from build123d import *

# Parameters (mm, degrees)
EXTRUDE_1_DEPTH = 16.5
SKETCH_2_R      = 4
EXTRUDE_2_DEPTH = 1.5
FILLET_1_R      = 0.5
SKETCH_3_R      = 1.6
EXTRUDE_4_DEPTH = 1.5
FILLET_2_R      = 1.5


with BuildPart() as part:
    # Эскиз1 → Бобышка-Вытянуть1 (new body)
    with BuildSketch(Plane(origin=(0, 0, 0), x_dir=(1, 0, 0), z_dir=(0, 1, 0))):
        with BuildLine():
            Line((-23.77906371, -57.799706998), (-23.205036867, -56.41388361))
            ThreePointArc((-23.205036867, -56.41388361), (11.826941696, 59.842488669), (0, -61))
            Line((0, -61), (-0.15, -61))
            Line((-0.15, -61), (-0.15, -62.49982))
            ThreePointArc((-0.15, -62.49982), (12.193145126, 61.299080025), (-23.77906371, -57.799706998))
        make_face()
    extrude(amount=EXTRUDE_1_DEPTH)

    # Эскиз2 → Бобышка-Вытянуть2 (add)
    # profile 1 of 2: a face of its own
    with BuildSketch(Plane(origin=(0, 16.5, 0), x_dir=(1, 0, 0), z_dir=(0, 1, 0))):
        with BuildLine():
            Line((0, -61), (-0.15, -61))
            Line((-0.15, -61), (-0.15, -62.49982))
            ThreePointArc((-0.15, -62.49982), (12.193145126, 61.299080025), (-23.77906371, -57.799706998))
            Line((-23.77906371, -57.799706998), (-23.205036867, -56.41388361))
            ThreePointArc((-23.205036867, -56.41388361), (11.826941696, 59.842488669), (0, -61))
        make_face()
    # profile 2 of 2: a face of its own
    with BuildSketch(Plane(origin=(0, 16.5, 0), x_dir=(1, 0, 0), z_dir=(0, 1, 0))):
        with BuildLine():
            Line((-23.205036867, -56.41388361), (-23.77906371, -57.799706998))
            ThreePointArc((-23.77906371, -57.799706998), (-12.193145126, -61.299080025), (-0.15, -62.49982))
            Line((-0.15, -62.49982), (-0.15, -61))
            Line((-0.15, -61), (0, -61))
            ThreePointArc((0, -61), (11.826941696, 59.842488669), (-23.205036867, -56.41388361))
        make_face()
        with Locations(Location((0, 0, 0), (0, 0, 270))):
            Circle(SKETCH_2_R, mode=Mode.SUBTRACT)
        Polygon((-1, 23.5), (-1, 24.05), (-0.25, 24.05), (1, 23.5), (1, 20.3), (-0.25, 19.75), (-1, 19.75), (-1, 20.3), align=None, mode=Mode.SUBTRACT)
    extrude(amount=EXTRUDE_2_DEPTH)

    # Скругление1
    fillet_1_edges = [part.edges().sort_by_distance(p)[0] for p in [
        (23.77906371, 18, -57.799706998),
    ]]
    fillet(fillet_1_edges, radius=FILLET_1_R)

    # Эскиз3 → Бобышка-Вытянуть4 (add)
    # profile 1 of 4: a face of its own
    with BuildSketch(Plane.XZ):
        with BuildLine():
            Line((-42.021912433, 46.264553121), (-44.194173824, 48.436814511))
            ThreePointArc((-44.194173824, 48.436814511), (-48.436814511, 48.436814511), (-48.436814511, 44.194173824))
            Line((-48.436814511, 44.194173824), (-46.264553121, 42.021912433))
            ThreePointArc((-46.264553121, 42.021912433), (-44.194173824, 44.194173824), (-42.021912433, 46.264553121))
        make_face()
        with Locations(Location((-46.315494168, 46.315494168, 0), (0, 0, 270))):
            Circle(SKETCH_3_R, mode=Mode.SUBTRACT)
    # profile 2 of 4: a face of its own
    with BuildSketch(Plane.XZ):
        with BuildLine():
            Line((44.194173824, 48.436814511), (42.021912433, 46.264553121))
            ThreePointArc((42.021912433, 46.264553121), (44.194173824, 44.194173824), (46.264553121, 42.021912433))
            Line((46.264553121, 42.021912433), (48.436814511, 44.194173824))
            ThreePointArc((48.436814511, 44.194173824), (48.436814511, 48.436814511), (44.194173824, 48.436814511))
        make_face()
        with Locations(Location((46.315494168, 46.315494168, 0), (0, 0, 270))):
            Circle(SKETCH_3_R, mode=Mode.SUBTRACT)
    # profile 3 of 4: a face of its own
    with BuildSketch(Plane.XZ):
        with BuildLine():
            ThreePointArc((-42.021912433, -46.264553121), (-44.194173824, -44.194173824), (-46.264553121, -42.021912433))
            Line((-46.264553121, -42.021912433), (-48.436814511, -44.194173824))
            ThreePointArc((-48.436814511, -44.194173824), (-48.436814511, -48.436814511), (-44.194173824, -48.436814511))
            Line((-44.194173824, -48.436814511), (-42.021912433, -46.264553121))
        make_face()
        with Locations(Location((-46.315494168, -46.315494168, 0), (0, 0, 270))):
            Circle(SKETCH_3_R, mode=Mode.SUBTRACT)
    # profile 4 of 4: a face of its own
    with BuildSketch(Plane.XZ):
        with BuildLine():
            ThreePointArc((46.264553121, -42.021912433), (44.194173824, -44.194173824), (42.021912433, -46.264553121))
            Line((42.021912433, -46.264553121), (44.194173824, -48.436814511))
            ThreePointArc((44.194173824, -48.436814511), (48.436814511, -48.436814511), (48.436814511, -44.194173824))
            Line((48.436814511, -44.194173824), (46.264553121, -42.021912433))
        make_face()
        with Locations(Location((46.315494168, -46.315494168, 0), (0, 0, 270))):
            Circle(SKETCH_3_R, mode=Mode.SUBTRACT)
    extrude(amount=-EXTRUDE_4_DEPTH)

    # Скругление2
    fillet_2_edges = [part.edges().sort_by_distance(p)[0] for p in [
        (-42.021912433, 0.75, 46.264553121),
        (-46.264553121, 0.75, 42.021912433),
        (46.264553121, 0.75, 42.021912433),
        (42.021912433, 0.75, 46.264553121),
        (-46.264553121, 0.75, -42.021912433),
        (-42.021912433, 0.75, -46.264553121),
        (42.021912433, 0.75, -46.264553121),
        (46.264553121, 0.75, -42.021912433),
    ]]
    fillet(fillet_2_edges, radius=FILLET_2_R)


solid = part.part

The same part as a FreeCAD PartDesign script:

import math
import FreeCAD as App
import Part
import Sketcher
Q = App.Units.Quantity


def edges_at(feature, points):
    """Names of the edges that pass closest to the given points."""
    edges = feature.Shape.Edges
    near = lambda p: min(range(len(edges)), key=lambda i: edges[i].distToShape(Part.Vertex(*p))[0])
    return sorted({f"Edge{near(p) + 1}" for p in points})

doc = App.newDocument("Part")
body = doc.addObject("PartDesign::Body", "Body")

sketch1 = doc.addObject("Sketcher::SketchObject", "Sketch")
body.addObject(sketch1)
sketch1.AttachmentSupport = (doc.XZ_Plane, [""])
sketch1.MapMode = "FlatFace"
sketch1.addGeometry(Part.LineSegment(App.Vector(-23.779064, 57.799707, 0), App.Vector(-23.205037, 56.413884, 0)), False)
sketch1.addGeometry(Part.ArcOfCircle(Part.Circle(App.Vector(0, 0, 0), App.Vector(0, 0, 1), 61), math.radians(112.359109), math.radians(450)), False)
sketch1.addGeometry(Part.LineSegment(App.Vector(0, 61, 0), App.Vector(-0.15, 61, 0)), False)
sketch1.addGeometry(Part.LineSegment(App.Vector(-0.15, 61, 0), App.Vector(-0.15, 62.49982, 0)), False)
sketch1.addGeometry(Part.ArcOfCircle(Part.Circle(App.Vector(0, 0, 0), App.Vector(0, 0, 1), 62.5), math.radians(112.36249), math.radians(450.13751)), False)
sketch1.addConstraint(Sketcher.Constraint("Coincident", 0, 2, 1, 1))
sketch1.addConstraint(Sketcher.Constraint("Tangent", 1, 2, 2, 1))
sketch1.addConstraint(Sketcher.Constraint("Coincident", 2, 2, 3, 1))
sketch1.addConstraint(Sketcher.Constraint("Coincident", 3, 2, 4, 2))
sketch1.addConstraint(Sketcher.Constraint("Coincident", 4, 1, 0, 1))
sketch1.addConstraint(Sketcher.Constraint("Horizontal", 2))
sketch1.addConstraint(Sketcher.Constraint("Vertical", 3))
sketch1.addConstraint(Sketcher.Constraint("Coincident", 1, 3, -1, 1))
sketch1.addConstraint(Sketcher.Constraint("Coincident", 4, 3, -1, 1))
sketch1.addConstraint(Sketcher.Constraint("Radius", 1, Q("61 mm")))
sketch1.addConstraint(Sketcher.Constraint("Radius", 4, Q("62.5 mm")))
sketch1.addConstraint(Sketcher.Constraint("Angle", 0, Q("-67.5 deg")))
sketch1.addConstraint(Sketcher.Constraint("DistanceX", 2, 2, 2, 1, Q("0.15 mm")))
sketch1.addConstraint(Sketcher.Constraint("DistanceX", 0, 2, -1, 1, Q("23.205037 mm")))
pad1 = doc.addObject("PartDesign::Pad", "Pad")
body.addObject(pad1)
pad1.Profile = sketch1
pad1.Length = 16.5
pad1.Reversed = True

sketch2 = doc.addObject("Sketcher::SketchObject", "Sketch001")
body.addObject(sketch2)
sketch2.AttachmentSupport = (doc.XZ_Plane, [""])
sketch2.MapMode = "FlatFace"
sketch2.AttachmentOffset = App.Placement(App.Vector(0, 0, -16.5), App.Rotation())
sketch2.addGeometry(Part.ArcOfCircle(Part.Circle(App.Vector(0, 0, 0), App.Vector(0, 0, 1), 62.5), math.radians(112.36249), math.radians(450.13751)), False)
sketch2.addGeometry(Part.ArcOfCircle(Part.Circle(App.Vector(0, 0, 0), App.Vector(0, 0, 1), 62.5), math.radians(90.13751), math.radians(112.36249)), False)
sketch2.addGeometry(Part.LineSegment(App.Vector(1, -23.5, 0), App.Vector(1, -20.3, 0)), False)
sketch2.addGeometry(Part.LineSegment(App.Vector(1, -20.3, 0), App.Vector(-0.25, -19.75, 0)), False)
sketch2.addGeometry(Part.LineSegment(App.Vector(-0.25, -19.75, 0), App.Vector(-1, -19.75, 0)), False)
sketch2.addGeometry(Part.LineSegment(App.Vector(-1, -19.75, 0), App.Vector(-1, -24.05, 0)), False)
sketch2.addGeometry(Part.LineSegment(App.Vector(-1, -24.05, 0), App.Vector(-0.25, -24.05, 0)), False)
sketch2.addGeometry(Part.LineSegment(App.Vector(-0.25, -24.05, 0), App.Vector(1, -23.5, 0)), False)
sketch2.addGeometry(Part.Circle(App.Vector(0, 0, 0), App.Vector(0, 0, 1), 4), False)
sketch2.addConstraint(Sketcher.Constraint("Tangent", 0, 1, 1, 2))
sketch2.addConstraint(Sketcher.Constraint("Coincident", 1, 1, 0, 2))
sketch2.addConstraint(Sketcher.Constraint("Coincident", 2, 2, 3, 1))
sketch2.addConstraint(Sketcher.Constraint("Coincident", 3, 2, 4, 1))
sketch2.addConstraint(Sketcher.Constraint("Coincident", 4, 2, 5, 1))
sketch2.addConstraint(Sketcher.Constraint("Coincident", 5, 2, 6, 1))
sketch2.addConstraint(Sketcher.Constraint("Coincident", 6, 2, 7, 1))
sketch2.addConstraint(Sketcher.Constraint("Coincident", 7, 2, 2, 1))
sketch2.addConstraint(Sketcher.Constraint("Vertical", 2))
sketch2.addConstraint(Sketcher.Constraint("Horizontal", 4))
sketch2.addConstraint(Sketcher.Constraint("Vertical", 5))
sketch2.addConstraint(Sketcher.Constraint("Horizontal", 6))
sketch2.addConstraint(Sketcher.Constraint("Coincident", 0, 3, -1, 1))
sketch2.addConstraint(Sketcher.Constraint("Coincident", 8, 3, -1, 1))
sketch2.addConstraint(Sketcher.Constraint("Vertical", 3, 2, 6, 2))
sketch2.addConstraint(Sketcher.Constraint("Equal", 3, 7))
sketch2.addConstraint(Sketcher.Constraint("Diameter", 8, Q("8 mm")))
sketch2.addConstraint(Sketcher.Constraint("Radius", 0, Q("62.5 mm")))
sketch2.addConstraint(Sketcher.Constraint("DistanceY", 2, 1, 2, 2, Q("3.2 mm")))
sketch2.addConstraint(Sketcher.Constraint("DistanceY", 5, 2, 5, 1, Q("4.3 mm")))
sketch2.addConstraint(Sketcher.Constraint("DistanceX", -1, 1, 2, 2, Q("1 mm")))
sketch2.addConstraint(Sketcher.Constraint("DistanceX", 4, 2, -1, 1, Q("1 mm")))
sketch2.addConstraint(Sketcher.Constraint("DistanceX", 4, 2, 4, 1, Q("0.75 mm")))
sketch2.addConstraint(Sketcher.Constraint("DistanceY", 2, 2, -1, 1, Q("20.3 mm")))
sketch2.addConstraint(Sketcher.Constraint("DistanceX", 1, 1, -1, 1, Q("0.15 mm")))
sketch2.addConstraint(Sketcher.Constraint("DistanceX", 0, 1, -1, 1, Q("23.779064 mm")))
pad2 = doc.addObject("PartDesign::Pad", "Pad001")
body.addObject(pad2)
pad2.Profile = sketch2
pad2.Length = 1.5
pad2.Reversed = True
doc.recompute()

fillet = doc.addObject("PartDesign::Fillet", "Fillet")
body.addObject(fillet)
fillet.Base = (pad2, edges_at(pad2, [(12.193, 18, -61.299)]))
fillet.Radius = 0.5

sketch3 = doc.addObject("Sketcher::SketchObject", "Sketch002")
body.addObject(sketch3)
sketch3.AttachmentSupport = (doc.XZ_Plane, [""])
sketch3.MapMode = "FlatFace"
sketch3.addGeometry(Part.LineSegment(App.Vector(-42.021912, 46.264553, 0), App.Vector(-44.194174, 48.436815, 0)), False)
sketch3.addGeometry(Part.ArcOfCircle(Part.Circle(App.Vector(-46.315494, 46.315494, 0), App.Vector(0, 0, 1), 3), math.radians(45), math.radians(225)), False)
sketch3.addGeometry(Part.LineSegment(App.Vector(-48.436815, 44.194174, 0), App.Vector(-46.264553, 42.021912, 0)), False)
sketch3.addGeometry(Part.ArcOfCircle(Part.Circle(App.Vector(0, 0, 0), App.Vector(0, 0, 1), 62.5), math.radians(132.248745), math.radians(137.751255)), False)
sketch3.addGeometry(Part.Circle(App.Vector(-46.315494, 46.315494, 0), App.Vector(0, 0, 1), 1.6), False)
sketch3.addGeometry(Part.LineSegment(App.Vector(44.194174, 48.436815, 0), App.Vector(42.021912, 46.264553, 0)), False)
sketch3.addGeometry(Part.ArcOfCircle(Part.Circle(App.Vector(0, 0, 0), App.Vector(0, 0, 1), 62.5), math.radians(42.248745), math.radians(47.751255)), False)
sketch3.addGeometry(Part.LineSegment(App.Vector(46.264553, 42.021912, 0), App.Vector(48.436815, 44.194174, 0)), False)
sketch3.addGeometry(Part.ArcOfCircle(Part.Circle(App.Vector(46.315494, 46.315494, 0), App.Vector(0, 0, 1), 3), math.radians(-45), math.radians(135)), False)
sketch3.addGeometry(Part.Circle(App.Vector(46.315494, 46.315494, 0), App.Vector(0, 0, 1), 1.6), False)
sketch3.addGeometry(Part.ArcOfCircle(Part.Circle(App.Vector(0, 0, 0), App.Vector(0, 0, 1), 62.5), math.radians(-137.751255), math.radians(-132.248745)), False)
sketch3.addGeometry(Part.LineSegment(App.Vector(-46.264553, -42.021912, 0), App.Vector(-48.436815, -44.194174, 0)), False)
sketch3.addGeometry(Part.ArcOfCircle(Part.Circle(App.Vector(-46.315494, -46.315494, 0), App.Vector(0, 0, 1), 3), math.radians(135), math.radians(315)), False)
sketch3.addGeometry(Part.LineSegment(App.Vector(-44.194174, -48.436815, 0), App.Vector(-42.021912, -46.264553, 0)), False)
sketch3.addGeometry(Part.Circle(App.Vector(-46.315494, -46.315494, 0), App.Vector(0, 0, 1), 1.6), False)
sketch3.addGeometry(Part.ArcOfCircle(Part.Circle(App.Vector(0, 0, 0), App.Vector(0, 0, 1), 62.5), math.radians(-47.751255), math.radians(-42.248745)), False)
sketch3.addGeometry(Part.LineSegment(App.Vector(42.021912, -46.264553, 0), App.Vector(44.194174, -48.436815, 0)), False)
sketch3.addGeometry(Part.ArcOfCircle(Part.Circle(App.Vector(46.315494, -46.315494, 0), App.Vector(0, 0, 1), 3), math.radians(-135), math.radians(45)), False)
sketch3.addGeometry(Part.LineSegment(App.Vector(48.436815, -44.194174, 0), App.Vector(46.264553, -42.021912, 0)), False)
sketch3.addGeometry(Part.Circle(App.Vector(46.315494, -46.315494, 0), App.Vector(0, 0, 1), 1.6), False)
sketch3.addConstraint(Sketcher.Constraint("Tangent", 0, 2, 1, 1))
sketch3.addConstraint(Sketcher.Constraint("Tangent", 1, 2, 2, 1))
sketch3.addConstraint(Sketcher.Constraint("Coincident", 2, 2, 3, 2))
sketch3.addConstraint(Sketcher.Constraint("Coincident", 3, 1, 0, 1))
sketch3.addConstraint(Sketcher.Constraint("Coincident", 5, 2, 6, 2))
sketch3.addConstraint(Sketcher.Constraint("Coincident", 6, 1, 7, 1))
sketch3.addConstraint(Sketcher.Constraint("Tangent", 7, 2, 8, 1))
sketch3.addConstraint(Sketcher.Constraint("Tangent", 8, 2, 5, 1))
sketch3.addConstraint(Sketcher.Constraint("Coincident", 10, 1, 11, 1))
sketch3.addConstraint(Sketcher.Constraint("Tangent", 11, 2, 12, 1))
sketch3.addConstraint(Sketcher.Constraint("Tangent", 12, 2, 13, 1))
sketch3.addConstraint(Sketcher.Constraint("Coincident", 13, 2, 10, 2))
sketch3.addConstraint(Sketcher.Constraint("Coincident", 15, 1, 16, 1))
sketch3.addConstraint(Sketcher.Constraint("Tangent", 16, 2, 17, 1))
sketch3.addConstraint(Sketcher.Constraint("Tangent", 17, 2, 18, 1))
sketch3.addConstraint(Sketcher.Constraint("Coincident", 18, 2, 15, 2))
sketch3.addConstraint(Sketcher.Constraint("Coincident", 3, 3, -1, 1))
sketch3.addConstraint(Sketcher.Constraint("Coincident", 6, 3, -1, 1))
sketch3.addConstraint(Sketcher.Constraint("Coincident", 10, 3, -1, 1))
sketch3.addConstraint(Sketcher.Constraint("Coincident", 15, 3, -1, 1))
sketch3.addConstraint(Sketcher.Constraint("Coincident", 4, 3, 1, 3))
sketch3.addConstraint(Sketcher.Constraint("Coincident", 9, 3, 8, 3))
sketch3.addConstraint(Sketcher.Constraint("Coincident", 14, 3, 12, 3))
sketch3.addConstraint(Sketcher.Constraint("Coincident", 19, 3, 17, 3))
sketch3.addConstraint(Sketcher.Constraint("Equal", 3, 6))
sketch3.addConstraint(Sketcher.Constraint("Equal", 1, 8))
sketch3.addConstraint(Sketcher.Constraint("Equal", 4, 9))
sketch3.addConstraint(Sketcher.Constraint("Equal", 6, 10))
sketch3.addConstraint(Sketcher.Constraint("Equal", 8, 12))
sketch3.addConstraint(Sketcher.Constraint("Equal", 9, 14))
sketch3.addConstraint(Sketcher.Constraint("Equal", 10, 15))
sketch3.addConstraint(Sketcher.Constraint("Equal", 12, 17))
sketch3.addConstraint(Sketcher.Constraint("Equal", 14, 19))
sketch3.addConstraint(Sketcher.Constraint("Symmetric", 8, 3, 12, 3, -1, 1))
sketch3.addConstraint(Sketcher.Constraint("Symmetric", 1, 3, 17, 3, -1, 1))
sketch3.addConstraint(Sketcher.Constraint("Symmetric", 1, 3, 8, 3, -2))
sketch3.addConstraint(Sketcher.Constraint("Parallel", 0, 2))
sketch3.addConstraint(Sketcher.Constraint("Perpendicular", 2, 5))
sketch3.addConstraint(Sketcher.Constraint("Parallel", 5, 7))
sketch3.addConstraint(Sketcher.Constraint("Parallel", 7, 11))
sketch3.addConstraint(Sketcher.Constraint("Parallel", 11, 13))
sketch3.addConstraint(Sketcher.Constraint("Perpendicular", 13, 16))
sketch3.addConstraint(Sketcher.Constraint("Parallel", 16, 18))
sketch3.addConstraint(Sketcher.Constraint("Horizontal", 3, 1, 5, 2))
sketch3.addConstraint(Sketcher.Constraint("Equal", 0, 2))
sketch3.addConstraint(Sketcher.Constraint("Radius", 1, Q("3 mm")))
sketch3.addConstraint(Sketcher.Constraint("Diameter", 4, Q("3.2 mm")))
sketch3.addConstraint(Sketcher.Constraint("Radius", 3, Q("62.5 mm")))
sketch3.addConstraint(Sketcher.Constraint("Distance", 0, Q("3.072042 mm")))
pad3 = doc.addObject("PartDesign::Pad", "Pad002")
body.addObject(pad3)
pad3.Profile = sketch3
pad3.Length = 1.5
pad3.Reversed = True
doc.recompute()

fillet2 = doc.addObject("PartDesign::Fillet", "Fillet001")
body.addObject(fillet2)
fillet2.Base = (pad3, edges_at(pad3, [
    (-42.022, 0.75, 46.265),
    (-46.265, 0.75, 42.022),
    (46.265, 0.75, 42.022),
    (42.022, 0.75, 46.265),
    (-46.265, 0.75, -42.022),
    (-42.022, 0.75, -46.265),
    (42.022, 0.75, -46.265),
    (46.265, 0.75, -42.022),
]))
fillet2.Radius = 1.5

doc.recompute()
